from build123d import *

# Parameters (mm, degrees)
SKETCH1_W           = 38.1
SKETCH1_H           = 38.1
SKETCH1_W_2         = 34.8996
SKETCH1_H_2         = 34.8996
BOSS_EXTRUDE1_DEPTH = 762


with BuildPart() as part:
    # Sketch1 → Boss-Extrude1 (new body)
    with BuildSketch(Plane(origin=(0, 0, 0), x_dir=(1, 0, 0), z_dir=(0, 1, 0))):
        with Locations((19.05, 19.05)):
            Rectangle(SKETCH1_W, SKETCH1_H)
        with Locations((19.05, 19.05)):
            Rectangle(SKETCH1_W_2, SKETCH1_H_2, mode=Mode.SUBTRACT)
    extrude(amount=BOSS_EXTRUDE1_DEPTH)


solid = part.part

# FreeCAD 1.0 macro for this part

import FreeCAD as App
import Part
import Sketcher

V = App.Vector
Q = App.Units.Quantity


def add_polygon(sketch, points):
    """Adds a closed chain of lines whose ends are joined by coincident constraints."""
    first, n = sketch.GeometryCount, len(points)
    for a, b in zip(points, points[1:] + points[:1]):
        sketch.addGeometry(Part.LineSegment(App.Vector(*a, 0), App.Vector(*b, 0)), False)
    for i in range(n):
        sketch.addConstraint(Sketcher.Constraint("Coincident", first + i, 2, first + (i + 1) % n, 1))

doc = App.newDocument("Part")
body = doc.addObject("PartDesign::Body", "Body")

# Sketch on XZ plane
sketch1 = body.newObject("Sketcher::SketchObject", "Sketch")
sketch1.AttachmentSupport = (doc.getObject("XZ_Plane"), [""])
sketch1.MapMode = "FlatFace"
add_polygon(sketch1, [(0, -38), (0, 0), (38, 0), (38, -38)])  # lines 0-3
add_polygon(sketch1, [(36, -2), (2, -2), (2, -36), (36, -36)])  # lines 4-7
sketch1.addConstraint([
    Sketcher.Constraint("Vertical", 0),
    Sketcher.Constraint("Horizontal", 1),
    Sketcher.Constraint("Vertical", 2),
    Sketcher.Constraint("Horizontal", 3),
    Sketcher.Constraint("Horizontal", 4),
    Sketcher.Constraint("Vertical", 5),
    Sketcher.Constraint("Horizontal", 6),
    Sketcher.Constraint("Vertical", 7),
    Sketcher.Constraint("Coincident", 0, 2, -1, 1),
    Sketcher.Constraint("Equal", 3, 0),
    Sketcher.Constraint("Equal", 6, 5),
    Sketcher.Constraint("DistanceX", 1, 1, 1, 2, Q("1.5 in")),
    Sketcher.Constraint("DistanceX", 4, 2, 4, 1, Q("1.374 in")),
    Sketcher.Constraint("DistanceX", -1, 1, 4, 2, Q("0.063 in")),
    Sketcher.Constraint("DistanceY", 4, 2, -1, 1, Q("0.063 in")),
])
pad1 = body.newObject("PartDesign::Pad", "Pad")
pad1.Profile = sketch1
pad1.Length = Q("30 in")
pad1.Reversed = True

doc.recompute()
